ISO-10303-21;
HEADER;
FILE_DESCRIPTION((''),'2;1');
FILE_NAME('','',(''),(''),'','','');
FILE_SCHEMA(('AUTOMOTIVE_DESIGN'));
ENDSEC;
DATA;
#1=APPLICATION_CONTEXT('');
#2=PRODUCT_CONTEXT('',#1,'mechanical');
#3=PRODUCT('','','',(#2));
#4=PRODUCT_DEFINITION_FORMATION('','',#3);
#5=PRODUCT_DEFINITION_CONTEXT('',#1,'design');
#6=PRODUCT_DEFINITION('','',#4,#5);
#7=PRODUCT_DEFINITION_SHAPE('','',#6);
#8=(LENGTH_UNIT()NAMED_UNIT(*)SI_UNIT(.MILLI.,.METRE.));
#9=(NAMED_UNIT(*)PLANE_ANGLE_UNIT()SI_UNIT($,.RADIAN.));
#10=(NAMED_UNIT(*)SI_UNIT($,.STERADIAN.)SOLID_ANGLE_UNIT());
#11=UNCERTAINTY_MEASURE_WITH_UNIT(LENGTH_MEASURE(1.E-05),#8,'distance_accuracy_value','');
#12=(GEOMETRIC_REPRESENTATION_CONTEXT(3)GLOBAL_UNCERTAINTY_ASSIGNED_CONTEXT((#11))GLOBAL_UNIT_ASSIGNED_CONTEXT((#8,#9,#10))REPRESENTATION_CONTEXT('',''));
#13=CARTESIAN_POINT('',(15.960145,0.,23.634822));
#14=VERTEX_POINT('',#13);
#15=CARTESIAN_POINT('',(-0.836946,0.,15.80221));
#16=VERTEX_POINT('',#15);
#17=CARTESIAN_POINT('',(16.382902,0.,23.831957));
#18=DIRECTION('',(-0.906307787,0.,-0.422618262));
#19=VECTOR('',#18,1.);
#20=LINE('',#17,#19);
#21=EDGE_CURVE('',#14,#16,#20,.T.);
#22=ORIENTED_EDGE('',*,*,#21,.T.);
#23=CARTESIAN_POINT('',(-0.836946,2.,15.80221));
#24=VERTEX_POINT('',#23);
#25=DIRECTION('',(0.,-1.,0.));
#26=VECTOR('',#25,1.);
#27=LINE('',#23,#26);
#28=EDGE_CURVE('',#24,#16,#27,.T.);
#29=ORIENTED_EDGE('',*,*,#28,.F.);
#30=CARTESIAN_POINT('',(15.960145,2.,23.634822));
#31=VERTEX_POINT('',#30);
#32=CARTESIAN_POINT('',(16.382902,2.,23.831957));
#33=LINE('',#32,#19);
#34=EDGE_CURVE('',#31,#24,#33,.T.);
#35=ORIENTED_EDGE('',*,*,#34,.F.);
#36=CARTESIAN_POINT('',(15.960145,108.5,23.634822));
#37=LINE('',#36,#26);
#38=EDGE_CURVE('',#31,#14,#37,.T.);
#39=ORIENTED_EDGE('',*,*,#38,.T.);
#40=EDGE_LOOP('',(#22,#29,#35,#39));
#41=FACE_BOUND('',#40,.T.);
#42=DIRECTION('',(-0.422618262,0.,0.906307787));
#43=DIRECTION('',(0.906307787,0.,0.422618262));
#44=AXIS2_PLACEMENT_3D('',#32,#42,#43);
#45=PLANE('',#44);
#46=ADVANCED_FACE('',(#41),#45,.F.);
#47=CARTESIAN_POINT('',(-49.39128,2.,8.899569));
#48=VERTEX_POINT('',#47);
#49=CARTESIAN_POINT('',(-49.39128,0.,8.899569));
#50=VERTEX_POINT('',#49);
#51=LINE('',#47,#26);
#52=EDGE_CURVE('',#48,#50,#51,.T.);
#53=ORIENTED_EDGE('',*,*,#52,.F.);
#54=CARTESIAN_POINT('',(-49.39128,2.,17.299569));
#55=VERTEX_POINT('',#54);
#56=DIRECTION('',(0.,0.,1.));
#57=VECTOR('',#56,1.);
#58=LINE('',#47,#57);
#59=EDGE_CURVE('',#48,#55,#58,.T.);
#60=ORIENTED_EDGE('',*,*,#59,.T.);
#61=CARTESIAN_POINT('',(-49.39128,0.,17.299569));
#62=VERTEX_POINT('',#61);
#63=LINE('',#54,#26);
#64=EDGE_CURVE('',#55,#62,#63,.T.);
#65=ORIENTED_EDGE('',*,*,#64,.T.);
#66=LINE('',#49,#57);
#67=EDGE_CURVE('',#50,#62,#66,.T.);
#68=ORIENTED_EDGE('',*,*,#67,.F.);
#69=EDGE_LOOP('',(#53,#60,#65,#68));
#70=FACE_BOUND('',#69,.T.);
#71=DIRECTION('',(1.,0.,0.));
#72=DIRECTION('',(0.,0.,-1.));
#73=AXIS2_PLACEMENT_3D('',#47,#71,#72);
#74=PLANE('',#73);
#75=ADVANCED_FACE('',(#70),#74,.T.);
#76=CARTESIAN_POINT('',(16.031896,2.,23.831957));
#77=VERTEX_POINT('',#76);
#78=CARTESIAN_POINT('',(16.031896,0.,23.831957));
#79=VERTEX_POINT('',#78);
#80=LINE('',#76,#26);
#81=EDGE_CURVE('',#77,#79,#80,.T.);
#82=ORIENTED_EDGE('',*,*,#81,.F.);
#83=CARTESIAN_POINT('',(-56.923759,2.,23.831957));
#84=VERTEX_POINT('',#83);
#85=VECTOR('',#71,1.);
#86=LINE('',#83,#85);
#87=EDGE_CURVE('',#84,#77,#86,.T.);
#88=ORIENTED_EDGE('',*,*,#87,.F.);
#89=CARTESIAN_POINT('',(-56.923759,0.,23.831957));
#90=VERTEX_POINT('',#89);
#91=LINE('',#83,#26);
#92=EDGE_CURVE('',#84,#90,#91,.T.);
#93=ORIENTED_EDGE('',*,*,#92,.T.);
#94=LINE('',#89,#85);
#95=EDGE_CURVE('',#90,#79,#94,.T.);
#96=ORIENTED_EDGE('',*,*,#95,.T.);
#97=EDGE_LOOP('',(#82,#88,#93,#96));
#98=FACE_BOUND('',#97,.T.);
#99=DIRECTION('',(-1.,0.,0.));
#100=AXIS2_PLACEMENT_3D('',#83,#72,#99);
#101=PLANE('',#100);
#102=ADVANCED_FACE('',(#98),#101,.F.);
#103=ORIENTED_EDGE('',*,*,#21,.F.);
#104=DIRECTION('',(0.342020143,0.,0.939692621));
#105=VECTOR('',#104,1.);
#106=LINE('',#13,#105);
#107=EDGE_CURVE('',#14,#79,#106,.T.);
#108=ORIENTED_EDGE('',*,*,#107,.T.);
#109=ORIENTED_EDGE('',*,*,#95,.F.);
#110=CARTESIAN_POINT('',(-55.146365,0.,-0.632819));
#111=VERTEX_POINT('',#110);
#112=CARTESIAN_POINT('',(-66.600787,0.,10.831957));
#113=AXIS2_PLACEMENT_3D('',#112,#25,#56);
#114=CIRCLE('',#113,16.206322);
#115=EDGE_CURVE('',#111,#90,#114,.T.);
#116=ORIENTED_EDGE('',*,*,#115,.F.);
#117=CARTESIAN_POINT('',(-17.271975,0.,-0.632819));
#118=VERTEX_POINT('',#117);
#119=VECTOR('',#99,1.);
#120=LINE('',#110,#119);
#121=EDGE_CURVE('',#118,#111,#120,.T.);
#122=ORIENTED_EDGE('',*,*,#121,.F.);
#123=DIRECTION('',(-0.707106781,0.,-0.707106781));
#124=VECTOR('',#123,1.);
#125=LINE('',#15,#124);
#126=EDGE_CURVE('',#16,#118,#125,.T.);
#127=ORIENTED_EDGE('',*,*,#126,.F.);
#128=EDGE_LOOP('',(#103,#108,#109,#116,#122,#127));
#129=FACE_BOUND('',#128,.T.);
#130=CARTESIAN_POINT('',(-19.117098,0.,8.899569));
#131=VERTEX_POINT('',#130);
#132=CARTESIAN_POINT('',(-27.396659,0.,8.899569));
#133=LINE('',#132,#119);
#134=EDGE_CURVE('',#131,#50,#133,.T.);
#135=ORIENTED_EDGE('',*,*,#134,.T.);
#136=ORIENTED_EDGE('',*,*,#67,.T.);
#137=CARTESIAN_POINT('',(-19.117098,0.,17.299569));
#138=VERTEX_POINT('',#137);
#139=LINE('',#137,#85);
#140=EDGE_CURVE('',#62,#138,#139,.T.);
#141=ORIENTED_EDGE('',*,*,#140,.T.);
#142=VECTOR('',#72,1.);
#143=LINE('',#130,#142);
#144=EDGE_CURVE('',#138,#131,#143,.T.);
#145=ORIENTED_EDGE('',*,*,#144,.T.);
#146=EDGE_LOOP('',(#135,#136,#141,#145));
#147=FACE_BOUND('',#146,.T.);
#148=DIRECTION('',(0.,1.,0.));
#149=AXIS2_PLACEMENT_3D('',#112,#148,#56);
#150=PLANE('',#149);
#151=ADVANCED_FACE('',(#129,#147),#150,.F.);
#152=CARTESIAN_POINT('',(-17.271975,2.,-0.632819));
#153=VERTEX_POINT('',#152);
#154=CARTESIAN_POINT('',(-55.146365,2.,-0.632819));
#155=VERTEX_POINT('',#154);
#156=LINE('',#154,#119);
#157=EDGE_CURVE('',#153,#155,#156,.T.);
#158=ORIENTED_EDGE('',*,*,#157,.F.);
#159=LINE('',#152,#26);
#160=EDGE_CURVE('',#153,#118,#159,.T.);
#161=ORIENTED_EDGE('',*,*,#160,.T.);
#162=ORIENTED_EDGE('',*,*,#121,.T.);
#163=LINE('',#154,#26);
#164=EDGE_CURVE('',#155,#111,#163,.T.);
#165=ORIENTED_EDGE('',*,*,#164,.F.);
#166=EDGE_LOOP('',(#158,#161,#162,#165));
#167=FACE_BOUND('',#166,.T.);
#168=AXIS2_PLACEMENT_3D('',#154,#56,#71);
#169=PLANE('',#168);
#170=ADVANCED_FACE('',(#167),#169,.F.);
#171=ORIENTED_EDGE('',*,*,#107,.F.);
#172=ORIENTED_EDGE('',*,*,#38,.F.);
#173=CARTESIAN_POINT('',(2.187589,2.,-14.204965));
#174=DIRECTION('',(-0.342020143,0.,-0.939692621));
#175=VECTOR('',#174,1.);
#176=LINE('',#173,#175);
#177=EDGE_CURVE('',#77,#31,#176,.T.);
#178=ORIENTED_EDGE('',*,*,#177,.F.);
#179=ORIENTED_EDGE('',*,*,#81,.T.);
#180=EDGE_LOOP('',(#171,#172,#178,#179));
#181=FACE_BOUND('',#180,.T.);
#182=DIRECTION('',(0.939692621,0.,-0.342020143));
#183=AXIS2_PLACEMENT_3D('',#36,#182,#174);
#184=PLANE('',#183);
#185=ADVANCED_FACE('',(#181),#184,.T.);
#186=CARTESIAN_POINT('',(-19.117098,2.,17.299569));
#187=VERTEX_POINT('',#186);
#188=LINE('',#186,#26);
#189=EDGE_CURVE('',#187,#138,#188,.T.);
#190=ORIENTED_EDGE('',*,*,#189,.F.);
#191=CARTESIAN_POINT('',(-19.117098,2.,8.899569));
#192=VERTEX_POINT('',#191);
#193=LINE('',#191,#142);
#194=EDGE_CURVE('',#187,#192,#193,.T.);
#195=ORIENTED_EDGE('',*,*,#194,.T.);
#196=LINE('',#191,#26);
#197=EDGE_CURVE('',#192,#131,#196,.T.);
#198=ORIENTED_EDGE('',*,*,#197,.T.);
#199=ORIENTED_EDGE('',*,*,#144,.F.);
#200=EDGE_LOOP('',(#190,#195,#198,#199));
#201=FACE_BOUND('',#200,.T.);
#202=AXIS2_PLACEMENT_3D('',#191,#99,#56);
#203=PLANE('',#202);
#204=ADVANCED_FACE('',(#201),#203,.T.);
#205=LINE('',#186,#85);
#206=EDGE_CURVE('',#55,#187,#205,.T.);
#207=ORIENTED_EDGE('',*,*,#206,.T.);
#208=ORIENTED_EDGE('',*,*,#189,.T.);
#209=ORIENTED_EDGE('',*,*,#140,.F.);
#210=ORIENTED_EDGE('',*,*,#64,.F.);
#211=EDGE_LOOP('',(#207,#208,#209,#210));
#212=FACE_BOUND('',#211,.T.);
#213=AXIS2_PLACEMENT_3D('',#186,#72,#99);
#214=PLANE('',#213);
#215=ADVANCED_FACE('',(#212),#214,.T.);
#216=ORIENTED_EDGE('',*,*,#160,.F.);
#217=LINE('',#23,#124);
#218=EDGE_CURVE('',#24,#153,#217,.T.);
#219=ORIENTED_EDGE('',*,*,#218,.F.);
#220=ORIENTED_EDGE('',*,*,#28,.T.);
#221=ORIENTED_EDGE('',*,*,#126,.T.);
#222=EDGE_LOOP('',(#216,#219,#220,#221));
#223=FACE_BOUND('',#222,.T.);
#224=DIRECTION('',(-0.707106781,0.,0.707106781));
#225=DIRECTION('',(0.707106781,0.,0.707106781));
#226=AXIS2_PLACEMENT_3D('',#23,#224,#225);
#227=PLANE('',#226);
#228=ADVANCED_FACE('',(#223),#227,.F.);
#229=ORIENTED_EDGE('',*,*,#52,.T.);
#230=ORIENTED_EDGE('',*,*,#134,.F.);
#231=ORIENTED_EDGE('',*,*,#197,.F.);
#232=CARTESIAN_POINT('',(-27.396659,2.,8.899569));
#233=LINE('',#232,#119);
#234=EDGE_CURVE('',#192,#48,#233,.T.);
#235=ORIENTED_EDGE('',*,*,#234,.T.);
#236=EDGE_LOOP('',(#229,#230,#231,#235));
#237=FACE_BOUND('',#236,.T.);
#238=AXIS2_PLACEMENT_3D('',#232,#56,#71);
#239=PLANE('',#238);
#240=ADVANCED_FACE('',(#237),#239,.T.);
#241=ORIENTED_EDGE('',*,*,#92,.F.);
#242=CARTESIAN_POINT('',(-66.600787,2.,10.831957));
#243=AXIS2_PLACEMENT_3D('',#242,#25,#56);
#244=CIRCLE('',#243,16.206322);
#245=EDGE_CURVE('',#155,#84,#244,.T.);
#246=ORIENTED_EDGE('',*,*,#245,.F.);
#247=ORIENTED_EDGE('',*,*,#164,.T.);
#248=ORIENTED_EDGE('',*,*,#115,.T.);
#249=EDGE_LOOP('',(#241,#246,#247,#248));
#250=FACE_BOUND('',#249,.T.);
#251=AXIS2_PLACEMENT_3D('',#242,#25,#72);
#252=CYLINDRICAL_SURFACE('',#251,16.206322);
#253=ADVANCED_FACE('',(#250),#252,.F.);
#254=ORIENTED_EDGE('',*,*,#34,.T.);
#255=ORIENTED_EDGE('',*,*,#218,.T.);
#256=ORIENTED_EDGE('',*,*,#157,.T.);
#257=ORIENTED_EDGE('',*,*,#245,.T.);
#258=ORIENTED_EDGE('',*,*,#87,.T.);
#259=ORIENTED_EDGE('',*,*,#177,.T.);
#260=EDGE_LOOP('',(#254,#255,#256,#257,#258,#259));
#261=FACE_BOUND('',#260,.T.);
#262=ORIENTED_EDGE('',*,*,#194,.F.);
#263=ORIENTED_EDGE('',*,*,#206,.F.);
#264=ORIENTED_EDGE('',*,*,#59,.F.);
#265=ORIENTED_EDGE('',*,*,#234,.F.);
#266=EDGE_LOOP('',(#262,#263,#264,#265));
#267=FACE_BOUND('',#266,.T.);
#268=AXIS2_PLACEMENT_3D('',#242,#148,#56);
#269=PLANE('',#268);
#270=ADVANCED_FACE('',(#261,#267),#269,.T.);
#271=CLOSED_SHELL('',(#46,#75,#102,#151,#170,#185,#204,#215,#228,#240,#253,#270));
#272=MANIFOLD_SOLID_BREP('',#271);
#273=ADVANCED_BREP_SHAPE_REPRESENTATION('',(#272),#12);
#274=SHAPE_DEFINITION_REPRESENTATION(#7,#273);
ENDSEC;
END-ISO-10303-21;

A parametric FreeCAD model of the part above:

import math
import FreeCAD as App
import Part
import Sketcher
from FreeCAD import Vector
Q = App.Units.Quantity


def add_polygon(sketch, points):
    """Adds a closed chain of lines whose ends are joined by coincident constraints."""
    first, n = sketch.GeometryCount, len(points)
    for a, b in zip(points, points[1:] + points[:1]):
        sketch.addGeometry(Part.LineSegment(App.Vector(*a, 0), App.Vector(*b, 0)), False)
    for i in range(n):
        sketch.addConstraint(Sketcher.Constraint("Coincident", first + i, 2, first + (i + 1) % n, 1))

doc = App.newDocument("Part")
body = doc.addObject("PartDesign::Body", "Body")

# Sketch on XZ plane
sketch1 = body.newObject("Sketcher::SketchObject", "Sketch")
sketch1.AttachmentSupport = (doc.getObject("XZ_Plane"), [""])
sketch1.MapMode = "FlatFace"
sketch1.addGeometry(Part.LineSegment(Vector(-57, 24, 0), Vector(16, 24, 0)), False)  # 0
sketch1.addGeometry(Part.LineSegment(Vector(16, 24, 0), Vector(-1, 16, 0)), False)  # 1
sketch1.addGeometry(Part.LineSegment(Vector(-1, 16, 0), Vector(-17, -1, 0)), False)  # 2
sketch1.addGeometry(Part.LineSegment(Vector(-17, -1, 0), Vector(-55, -1, 0)), False)  # 3
sketch1.addGeometry(Part.ArcOfCircle(Part.Circle(Vector(-67, 11, 0), Vector(0, 0, 1), 16), math.radians(-45), math.radians(24)), False)  # 4
sketch1.addGeometry(Part.ArcOfCircle(Part.Circle(Vector(-67, 11, 0), Vector(0, 0, 1), 16), math.radians(24), math.radians(53)), False)  # 5
add_polygon(sketch1, [(-19, 9), (-19, 17), (-49, 17), (-49, 9)])  # lines 6-9
sketch1.addConstraint(Sketcher.Constraint("Coincident", 0, 2, 1, 1))
sketch1.addConstraint(Sketcher.Constraint("Coincident", 1, 2, 2, 1))
sketch1.addConstraint(Sketcher.Constraint("Coincident", 2, 2, 3, 1))
sketch1.addConstraint(Sketcher.Constraint("Coincident", 3, 2, 4, 1))
sketch1.addConstraint(Sketcher.Constraint("Tangent", 4, 2, 5, 1))
sketch1.addConstraint(Sketcher.Constraint("Coincident", 5, 2, 0, 1))
sketch1.addConstraint(Sketcher.Constraint("Horizontal", 0))
sketch1.addConstraint(Sketcher.Constraint("Horizontal", 3))
sketch1.addConstraint(Sketcher.Constraint("Vertical", 6))
sketch1.addConstraint(Sketcher.Constraint("Horizontal", 7))
sketch1.addConstraint(Sketcher.Constraint("Vertical", 8))
sketch1.addConstraint(Sketcher.Constraint("Horizontal", 9))
sketch1.addConstraint(Sketcher.Constraint("Equal", 4, 5))
sketch1.addConstraint(Sketcher.Constraint("Horizontal", 4, 2, 6, 2))
sketch1.addConstraint(Sketcher.Constraint("Angle", 1, Q("-155 deg")))
sketch1.addConstraint(Sketcher.Constraint("Angle", 2, Q("-135 deg")))
sketch1.addConstraint(Sketcher.Constraint("Distance", 1, 19.0))
sketch1.addConstraint(Sketcher.Constraint("DistanceY", 6, 1, 6, 2, 8.4))
sketch1.addConstraint(Sketcher.Constraint("DistanceY", 5, 3, 0, 2, 13.0))
sketch1.addConstraint(Sketcher.Constraint("DistanceX", 6, 2, 0, 2, 35.5))
sketch1.addConstraint(Sketcher.Constraint("Radius", 5, 16.206322))
sketch1.addConstraint(Sketcher.Constraint("DistanceX", 4, 2, 1, 2, 50.904001))
sketch1.addConstraint(Sketcher.Constraint("DistanceX", 0, 1, 0, 2, 73.306661))
sketch1.addConstraint(Sketcher.Constraint("DistanceX", 7, 2, 7, 1, 30.274182))
sketch1.addConstraint(Sketcher.Constraint("Distance", 2, 23.242641))
sketch1.addConstraint(Sketcher.Constraint("DistanceY", -1, 1, 1, 2, 15.80221))
sketch1.addConstraint(Sketcher.Constraint("DistanceX", 5, 2, -1, 1, 56.923759))
pad1 = body.newObject("PartDesign::Pad", "Pad")
pad1.Profile = sketch1
pad1.Length = 2
pad1.Reversed = True

# Sketch on XZ plane
sketch2 = body.newObject("Sketcher::SketchObject", "Sketch001")
sketch2.AttachmentSupport = (doc.getObject("XZ_Plane"), [""])
sketch2.MapMode = "FlatFace"
sketch2.AttachmentOffset = App.Placement(Vector(0, 0, -2), App.Rotation())
add_polygon(sketch2, [(16.38, 23.83), (15.96, 23.63), (16.06, 23.91)])  # lines 0-2
sketch2.addConstraint(Sketcher.Constraint("Angle", 0, Q("-155 deg")))
sketch2.addConstraint(Sketcher.Constraint("Angle", 1, Q("70 deg")))
sketch2.addConstraint(Sketcher.Constraint("Distance", 0, 0.466461))
sketch2.addConstraint(Sketcher.Constraint("DistanceX", -1, 1, 1, 2, 16.059019))
sketch2.addConstraint(Sketcher.Constraint("DistanceY", 2, 2, 1, 2, 0.074519))
sketch2.addConstraint(Sketcher.Constraint("DistanceY", -1, 1, 0, 2, 23.634822))
pocket1 = body.newObject("PartDesign::Pocket", "Pocket")
pocket1.Profile = sketch2
pocket1.Type = "ThroughAll"
pocket1.Midplane = True

doc.recompute()
